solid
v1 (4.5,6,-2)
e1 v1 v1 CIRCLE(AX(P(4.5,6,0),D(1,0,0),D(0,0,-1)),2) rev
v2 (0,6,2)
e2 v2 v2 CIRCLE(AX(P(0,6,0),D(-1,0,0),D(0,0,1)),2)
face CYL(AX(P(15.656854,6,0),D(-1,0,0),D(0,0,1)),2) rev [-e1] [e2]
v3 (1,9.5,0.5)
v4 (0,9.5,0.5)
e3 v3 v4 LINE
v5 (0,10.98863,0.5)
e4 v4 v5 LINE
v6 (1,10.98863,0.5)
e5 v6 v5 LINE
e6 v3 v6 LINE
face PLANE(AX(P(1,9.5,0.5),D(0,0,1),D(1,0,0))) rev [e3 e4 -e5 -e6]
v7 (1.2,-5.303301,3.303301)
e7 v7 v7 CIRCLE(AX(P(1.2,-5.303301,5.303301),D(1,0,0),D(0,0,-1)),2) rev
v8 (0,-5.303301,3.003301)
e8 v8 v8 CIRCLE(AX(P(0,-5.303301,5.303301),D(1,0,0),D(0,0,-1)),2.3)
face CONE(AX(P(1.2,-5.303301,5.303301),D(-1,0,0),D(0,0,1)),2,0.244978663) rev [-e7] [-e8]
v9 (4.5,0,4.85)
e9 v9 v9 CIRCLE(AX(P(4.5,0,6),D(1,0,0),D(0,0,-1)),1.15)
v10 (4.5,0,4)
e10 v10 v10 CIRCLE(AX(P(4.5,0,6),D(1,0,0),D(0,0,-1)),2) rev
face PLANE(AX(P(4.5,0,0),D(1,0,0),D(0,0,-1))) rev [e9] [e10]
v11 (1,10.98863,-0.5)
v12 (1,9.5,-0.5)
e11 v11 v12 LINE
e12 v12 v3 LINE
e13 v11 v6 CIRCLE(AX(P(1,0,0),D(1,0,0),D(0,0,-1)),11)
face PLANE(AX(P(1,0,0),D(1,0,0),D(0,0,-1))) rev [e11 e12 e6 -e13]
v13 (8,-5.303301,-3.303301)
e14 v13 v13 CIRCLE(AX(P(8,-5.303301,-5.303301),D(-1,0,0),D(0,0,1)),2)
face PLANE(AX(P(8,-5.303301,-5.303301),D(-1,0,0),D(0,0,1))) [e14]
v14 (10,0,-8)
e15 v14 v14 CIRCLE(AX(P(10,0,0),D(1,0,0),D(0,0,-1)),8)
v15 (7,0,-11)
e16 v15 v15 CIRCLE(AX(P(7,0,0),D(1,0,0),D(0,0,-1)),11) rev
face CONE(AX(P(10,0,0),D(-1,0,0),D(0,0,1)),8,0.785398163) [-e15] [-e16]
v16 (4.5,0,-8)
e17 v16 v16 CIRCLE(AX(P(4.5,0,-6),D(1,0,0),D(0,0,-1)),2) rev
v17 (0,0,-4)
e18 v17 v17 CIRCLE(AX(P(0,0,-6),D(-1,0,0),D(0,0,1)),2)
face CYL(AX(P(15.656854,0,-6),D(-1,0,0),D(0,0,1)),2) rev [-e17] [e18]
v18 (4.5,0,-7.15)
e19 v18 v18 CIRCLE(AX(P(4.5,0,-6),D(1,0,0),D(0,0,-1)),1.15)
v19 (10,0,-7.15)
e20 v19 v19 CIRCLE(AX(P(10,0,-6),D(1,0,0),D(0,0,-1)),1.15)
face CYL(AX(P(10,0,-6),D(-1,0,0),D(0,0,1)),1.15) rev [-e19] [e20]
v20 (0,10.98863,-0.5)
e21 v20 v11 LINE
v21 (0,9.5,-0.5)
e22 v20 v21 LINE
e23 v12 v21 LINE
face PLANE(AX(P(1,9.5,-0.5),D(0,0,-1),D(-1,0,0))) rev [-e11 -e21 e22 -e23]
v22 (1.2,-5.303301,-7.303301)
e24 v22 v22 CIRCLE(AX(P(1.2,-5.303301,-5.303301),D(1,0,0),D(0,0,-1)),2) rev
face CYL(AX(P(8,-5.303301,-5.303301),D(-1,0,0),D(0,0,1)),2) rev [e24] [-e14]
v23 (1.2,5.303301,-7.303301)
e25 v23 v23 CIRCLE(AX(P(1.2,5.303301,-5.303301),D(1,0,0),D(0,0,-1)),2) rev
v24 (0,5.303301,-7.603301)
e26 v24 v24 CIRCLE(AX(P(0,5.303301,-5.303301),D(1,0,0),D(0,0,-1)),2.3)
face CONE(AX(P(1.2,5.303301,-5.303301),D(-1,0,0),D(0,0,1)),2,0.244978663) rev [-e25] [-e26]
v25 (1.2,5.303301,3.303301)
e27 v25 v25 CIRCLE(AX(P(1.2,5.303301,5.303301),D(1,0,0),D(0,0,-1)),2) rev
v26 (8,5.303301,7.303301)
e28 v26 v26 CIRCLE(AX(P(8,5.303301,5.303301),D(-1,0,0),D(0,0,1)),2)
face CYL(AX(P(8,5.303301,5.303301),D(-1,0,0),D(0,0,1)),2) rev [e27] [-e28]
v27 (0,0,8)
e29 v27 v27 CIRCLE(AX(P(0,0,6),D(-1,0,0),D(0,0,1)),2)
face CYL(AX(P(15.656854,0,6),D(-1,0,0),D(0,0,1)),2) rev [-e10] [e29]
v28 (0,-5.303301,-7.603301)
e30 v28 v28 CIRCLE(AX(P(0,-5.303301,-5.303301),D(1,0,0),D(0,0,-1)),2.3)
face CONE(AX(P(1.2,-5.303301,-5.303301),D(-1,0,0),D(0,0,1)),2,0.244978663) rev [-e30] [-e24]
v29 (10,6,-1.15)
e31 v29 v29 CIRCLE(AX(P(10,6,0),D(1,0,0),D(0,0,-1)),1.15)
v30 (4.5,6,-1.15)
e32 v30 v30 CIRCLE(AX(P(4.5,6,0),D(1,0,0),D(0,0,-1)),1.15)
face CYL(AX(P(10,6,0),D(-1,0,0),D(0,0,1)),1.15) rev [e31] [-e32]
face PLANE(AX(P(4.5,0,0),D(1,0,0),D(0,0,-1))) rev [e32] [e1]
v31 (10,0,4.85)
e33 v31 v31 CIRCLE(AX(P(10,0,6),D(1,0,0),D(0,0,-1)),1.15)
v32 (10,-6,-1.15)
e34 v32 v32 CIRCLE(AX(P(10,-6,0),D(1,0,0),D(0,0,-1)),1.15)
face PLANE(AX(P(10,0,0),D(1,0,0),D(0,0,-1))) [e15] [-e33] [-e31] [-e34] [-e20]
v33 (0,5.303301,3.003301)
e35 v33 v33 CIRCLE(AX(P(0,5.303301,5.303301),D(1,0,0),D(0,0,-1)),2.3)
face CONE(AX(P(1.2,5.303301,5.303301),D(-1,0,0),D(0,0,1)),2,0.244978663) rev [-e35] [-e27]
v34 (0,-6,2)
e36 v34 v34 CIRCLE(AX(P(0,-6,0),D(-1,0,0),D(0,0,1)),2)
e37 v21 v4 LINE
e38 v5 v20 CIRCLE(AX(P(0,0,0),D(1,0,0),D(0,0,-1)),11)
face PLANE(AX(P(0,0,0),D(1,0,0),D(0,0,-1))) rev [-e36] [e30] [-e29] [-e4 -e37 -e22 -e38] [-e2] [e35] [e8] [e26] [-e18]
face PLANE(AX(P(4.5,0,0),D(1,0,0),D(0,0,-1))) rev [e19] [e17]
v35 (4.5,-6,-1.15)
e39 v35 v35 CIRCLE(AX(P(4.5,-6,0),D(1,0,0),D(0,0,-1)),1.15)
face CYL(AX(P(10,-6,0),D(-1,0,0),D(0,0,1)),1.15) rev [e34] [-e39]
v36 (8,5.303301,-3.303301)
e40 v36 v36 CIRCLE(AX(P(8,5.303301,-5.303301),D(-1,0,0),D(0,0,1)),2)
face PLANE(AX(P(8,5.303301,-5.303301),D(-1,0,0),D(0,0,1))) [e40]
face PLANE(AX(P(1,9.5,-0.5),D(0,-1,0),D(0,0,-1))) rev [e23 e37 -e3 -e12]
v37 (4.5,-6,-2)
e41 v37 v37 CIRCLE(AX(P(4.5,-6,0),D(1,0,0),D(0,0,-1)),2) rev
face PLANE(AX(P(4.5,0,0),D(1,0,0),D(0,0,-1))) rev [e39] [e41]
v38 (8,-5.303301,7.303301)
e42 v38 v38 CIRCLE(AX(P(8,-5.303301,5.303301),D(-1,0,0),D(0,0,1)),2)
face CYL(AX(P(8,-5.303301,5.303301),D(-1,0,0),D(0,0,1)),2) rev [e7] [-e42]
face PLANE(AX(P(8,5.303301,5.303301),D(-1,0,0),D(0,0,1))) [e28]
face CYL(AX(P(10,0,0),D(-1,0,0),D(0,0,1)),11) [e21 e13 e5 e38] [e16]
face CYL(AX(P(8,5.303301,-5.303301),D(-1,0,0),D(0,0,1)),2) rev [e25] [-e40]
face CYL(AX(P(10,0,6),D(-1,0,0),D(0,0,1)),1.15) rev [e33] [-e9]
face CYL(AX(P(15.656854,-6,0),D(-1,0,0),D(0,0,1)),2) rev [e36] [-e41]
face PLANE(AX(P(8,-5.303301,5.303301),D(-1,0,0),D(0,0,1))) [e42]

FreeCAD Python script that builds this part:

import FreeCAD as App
import Part
import Sketcher


def edges_at(feature, points):
    """Names of the edges that pass closest to the given points."""
    edges = feature.Shape.Edges
    near = lambda p: min(range(len(edges)), key=lambda i: edges[i].distToShape(Part.Vertex(*p))[0])
    return sorted({f"Edge{near(p) + 1}" for p in points})

doc = App.newDocument("Part")
body = doc.addObject("PartDesign::Body", "Body")

sketch1 = body.newObject("Sketcher::SketchObject", "Sketch")
sketch1.AttachmentSupport = (doc.getObject("YZ_Plane"), [""])
sketch1.MapMode = "FlatFace"
sketch1.addGeometry([
    Part.Circle(App.Vector(0, 0, 0), App.Vector(0, 0, 1), 11),
    Part.Circle(App.Vector(-6, 0, 0), App.Vector(0, 0, 1), 1.1),
    Part.Circle(App.Vector(0, 6, 0), App.Vector(0, 0, 1), 1.1),
    Part.Circle(App.Vector(0, -6, 0), App.Vector(0, 0, 1), 1.1),
    Part.Circle(App.Vector(6, 0, 0), App.Vector(0, 0, 1), 1.1),
], False)
sketch1.addConstraint([
    Sketcher.Constraint("Coincident", 0, 3, -1, 1),
    Sketcher.Constraint("Equal", 1, 2),
    Sketcher.Constraint("Equal", 2, 3),
    Sketcher.Constraint("Equal", 3, 4),
    Sketcher.Constraint("Symmetric", 2, 3, 3, 3, -1, 1),
    Sketcher.Constraint("Symmetric", 1, 3, 4, 3, -1, 1),
    Sketcher.Constraint("PointOnObject", 1, 3, -1),
    Sketcher.Constraint("PointOnObject", 2, 3, -2),
    Sketcher.Constraint("Diameter", 0, 22.0),
    Sketcher.Constraint("Diameter", 1, 2.3),
    Sketcher.Constraint("DistanceX", 1, 3, -1, 1, 6.0),
    Sketcher.Constraint("DistanceY", -1, 1, 2, 3, 6.0),
])
pad1 = body.newObject("PartDesign::Pad", "Pad")
pad1.Profile = sketch1
pad1.Length = 10
doc.recompute()

chamfer = body.newObject("PartDesign::Chamfer", "Chamfer")
chamfer.Base = (pad1, edges_at(pad1, [(10, 0, 11)]))
chamfer.Size = 3

sketch2 = body.newObject("Sketcher::SketchObject", "Sketch001")
sketch2.AttachmentSupport = (doc.getObject("YZ_Plane"), [""])
sketch2.MapMode = "FlatFace"
sketch2.addGeometry([
    Part.Circle(App.Vector(0, -6, 0), App.Vector(0, 0, 1), 2),
    Part.Circle(App.Vector(6, 0, 0), App.Vector(0, 0, 1), 2),
    Part.Circle(App.Vector(-6, 0, 0), App.Vector(0, 0, 1), 2),
    Part.Circle(App.Vector(0, 6, 0), App.Vector(0, 0, 1), 2),
], False)
sketch2.addConstraint([
    Sketcher.Constraint("Equal", 0, 1),
    Sketcher.Constraint("Equal", 1, 2),
    Sketcher.Constraint("Equal", 2, 3),
    Sketcher.Constraint("Symmetric", 1, 3, 2, 3, -1, 1),
    Sketcher.Constraint("Symmetric", 0, 3, 3, 3, -1, 1),
    Sketcher.Constraint("PointOnObject", 0, 3, -2),
    Sketcher.Constraint("PointOnObject", 1, 3, -1),
    Sketcher.Constraint("Diameter", 0, 4.0),
    Sketcher.Constraint("DistanceY", 0, 3, -1, 1, 6.0),
    Sketcher.Constraint("DistanceX", -1, 1, 1, 3, 6.0),
])
pocket1 = body.newObject("PartDesign::Pocket", "Pocket")
pocket1.Profile = sketch2
pocket1.Length = 4.5
pocket1.Reversed = True

sketch3 = body.newObject("Sketcher::SketchObject", "Sketch002")
sketch3.AttachmentSupport = (doc.getObject("YZ_Plane"), [""])
sketch3.MapMode = "FlatFace"
sketch3.addGeometry([
    Part.Circle(App.Vector(5.3, 5.3, 0), App.Vector(0, 0, 1), 2),
    Part.Circle(App.Vector(5.3, -5.3, 0), App.Vector(0, 0, 1), 2),
    Part.Circle(App.Vector(-5.3, -5.3, 0), App.Vector(0, 0, 1), 2),
    Part.Circle(App.Vector(-5.3, 5.3, 0), App.Vector(0, 0, 1), 2),
], False)
sketch3.addConstraint([
    Sketcher.Constraint("Equal", 0, 1),
    Sketcher.Constraint("Equal", 1, 2),
    Sketcher.Constraint("Equal", 2, 3),
    Sketcher.Constraint("Symmetric", 0, 3, 2, 3, -1, 1),
    Sketcher.Constraint("Symmetric", 1, 3, 3, 3, -1, 1),
    Sketcher.Constraint("Symmetric", 1, 3, 2, 3, -2),
    Sketcher.Constraint("Diameter", 0, 4.0),
    Sketcher.Constraint("DistanceX", -1, 1, 0, 3, 5.303301),
    Sketcher.Constraint("DistanceY", -1, 1, 0, 3, 5.303301),
])
pocket2 = body.newObject("PartDesign::Pocket", "Pocket001")
pocket2.Profile = sketch3
pocket2.Length = 8
pocket2.Reversed = True
doc.recompute()

chamfer2 = body.newObject("PartDesign::Chamfer", "Chamfer001")
chamfer2.Base = (pocket2, edges_at(pocket2, [
    (0, -5.303, 3.303),
    (0, -5.303, -7.303),
    (0, 5.303, -7.303),
    (0, 5.303, 3.303),
]))
chamfer2.ChamferType = "Two distances"
chamfer2.Size = 0.3
chamfer2.Size2 = 1.2

sketch4 = body.newObject("Sketcher::SketchObject", "Sketch003")
sketch4.AttachmentSupport = (doc.getObject("YZ_Plane"), [""])
sketch4.MapMode = "FlatFace"
sketch4.addGeometry([
    Part.LineSegment(App.Vector(13.3, -0.5, 0), App.Vector(9.5, -0.5, 0)),
    Part.LineSegment(App.Vector(9.5, -0.5, 0), App.Vector(9.5, 0.5, 0)),
    Part.LineSegment(App.Vector(9.5, 0.5, 0), App.Vector(13.3, 0.5, 0)),
    Part.LineSegment(App.Vector(13.3, 0.5, 0), App.Vector(13.3, -0.5, 0)),
], False)
sketch4.addConstraint([
    Sketcher.Constraint("Coincident", 0, 2, 1, 1),
    Sketcher.Constraint("Coincident", 1, 2, 2, 1),
    Sketcher.Constraint("Coincident", 2, 2, 3, 1),
    Sketcher.Constraint("Coincident", 3, 2, 0, 1),
    Sketcher.Constraint("Horizontal", 0),
    Sketcher.Constraint("Vertical", 1),
    Sketcher.Constraint("Horizontal", 2),
    Sketcher.Constraint("Vertical", 3),
    Sketcher.Constraint("DistanceY", 1, 1, 1, 2, 1.0),
    Sketcher.Constraint("DistanceX", -1, 1, 0, 2, 9.5),
    Sketcher.Constraint("DistanceY", 0, 2, -1, 1, 0.5),
    Sketcher.Constraint("DistanceX", 0, 2, 0, 1, 3.829479),
])
pocket3 = body.newObject("PartDesign::Pocket", "Pocket002")
pocket3.Profile = sketch4
pocket3.Length = 1
pocket3.Reversed = True

doc.recompute()
